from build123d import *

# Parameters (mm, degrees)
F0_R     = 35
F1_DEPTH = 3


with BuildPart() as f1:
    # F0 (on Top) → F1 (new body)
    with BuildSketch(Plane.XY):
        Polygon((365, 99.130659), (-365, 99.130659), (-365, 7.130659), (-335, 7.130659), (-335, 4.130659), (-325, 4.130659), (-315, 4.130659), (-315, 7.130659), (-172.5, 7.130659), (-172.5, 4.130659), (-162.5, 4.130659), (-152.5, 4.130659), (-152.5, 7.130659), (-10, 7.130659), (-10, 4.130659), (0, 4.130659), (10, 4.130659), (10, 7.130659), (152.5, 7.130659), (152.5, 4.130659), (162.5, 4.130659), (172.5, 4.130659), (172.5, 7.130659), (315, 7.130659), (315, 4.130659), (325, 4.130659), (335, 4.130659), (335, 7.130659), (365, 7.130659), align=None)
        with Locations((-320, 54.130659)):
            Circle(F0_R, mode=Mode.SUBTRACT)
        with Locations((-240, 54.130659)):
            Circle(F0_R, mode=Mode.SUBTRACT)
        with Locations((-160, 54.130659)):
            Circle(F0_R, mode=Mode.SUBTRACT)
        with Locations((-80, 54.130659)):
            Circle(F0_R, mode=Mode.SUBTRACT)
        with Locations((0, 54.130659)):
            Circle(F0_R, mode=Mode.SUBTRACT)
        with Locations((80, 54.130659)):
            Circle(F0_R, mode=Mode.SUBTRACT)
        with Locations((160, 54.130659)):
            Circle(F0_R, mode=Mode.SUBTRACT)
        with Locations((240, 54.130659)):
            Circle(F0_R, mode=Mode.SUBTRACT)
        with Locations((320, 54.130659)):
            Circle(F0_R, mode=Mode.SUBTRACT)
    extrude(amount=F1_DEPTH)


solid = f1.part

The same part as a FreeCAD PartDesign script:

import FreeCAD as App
import Part
import Sketcher

V = App.Vector
Q = App.Units.Quantity


def add_polygon(sketch, points):
    """Adds a closed chain of lines whose ends are joined by coincident constraints."""
    first, n = sketch.GeometryCount, len(points)
    for a, b in zip(points, points[1:] + points[:1]):
        sketch.addGeometry(Part.LineSegment(App.Vector(*a, 0), App.Vector(*b, 0)), False)
    for i in range(n):
        sketch.addConstraint(Sketcher.Constraint("Coincident", first + i, 2, first + (i + 1) % n, 1))

doc = App.newDocument("Part")
params = doc.addObject("Spreadsheet::Sheet", "Params")
for row, (alias, value) in enumerate([
    ("sketch1_diameter", "70 mm"),
    ("sketch1_width", "730 mm"),
    ("sketch1_width2", "30 mm"),
    ("sketch1_width3", "20 mm"),
    ("sketch1_height", "92 mm"),
    ("pad1_length", "3 mm"),
], start=1):
    params.set(f"A{row}", alias)
    params.set(f"B{row}", "=" + value)
    params.setAlias(f"B{row}", alias)

body = doc.addObject("PartDesign::Body", "Body")

# Sketch on XY plane
sketch1 = body.newObject("Sketcher::SketchObject", "Sketch")
sketch1.AttachmentSupport = (doc.getObject("XY_Plane"), [""])
sketch1.MapMode = "FlatFace"
add_polygon(sketch1, [(365, 99.130659), (-365, 99.130659), (-365, 7.130659), (-335, 7.130659), (-335, 4.130659), (-315, 4.130659), (-315, 7.130659), (-172.5, 7.130659), (-172.5, 4.130659), (-152.5, 4.130659), (-152.5, 7.130659), (-10, 7.130659), (-10, 4.130659), (10, 4.130659), (10, 7.130659), (152.5, 7.130659), (152.5, 4.130659), (172.5, 4.130659), (172.5, 7.130659), (315, 7.130659), (315, 4.130659), (335, 4.130659), (335, 7.130659), (365, 7.130659)])  # lines 0-23
sketch1.addGeometry(Part.Circle(V(-320, 54.130659, 0), V(0, 0, 1), 35), False)  # 24
sketch1.addGeometry(Part.Circle(V(-240, 54.130659, 0), V(0, 0, 1), 35), False)  # 25
sketch1.addGeometry(Part.Circle(V(-160, 54.130659, 0), V(0, 0, 1), 35), False)  # 26
sketch1.addGeometry(Part.Circle(V(-80, 54.130659, 0), V(0, 0, 1), 35), False)  # 27
sketch1.addGeometry(Part.Circle(V(0, 54.130659, 0), V(0, 0, 1), 35), False)  # 28
sketch1.addGeometry(Part.Circle(V(80, 54.130659, 0), V(0, 0, 1), 35), False)  # 29
sketch1.addGeometry(Part.Circle(V(160, 54.130659, 0), V(0, 0, 1), 35), False)  # 30
sketch1.addGeometry(Part.Circle(V(240, 54.130659, 0), V(0, 0, 1), 35), False)  # 31
sketch1.addGeometry(Part.Circle(V(320, 54.130659, 0), V(0, 0, 1), 35), False)  # 32
sketch1.addConstraint(Sketcher.Constraint("Horizontal", 0))
sketch1.addConstraint(Sketcher.Constraint("Vertical", 1))
sketch1.addConstraint(Sketcher.Constraint("Horizontal", 2))
sketch1.addConstraint(Sketcher.Constraint("Vertical", 3))
sketch1.addConstraint(Sketcher.Constraint("Horizontal", 4))
sketch1.addConstraint(Sketcher.Constraint("Vertical", 5))
sketch1.addConstraint(Sketcher.Constraint("Horizontal", 6))
sketch1.addConstraint(Sketcher.Constraint("Vertical", 7))
sketch1.addConstraint(Sketcher.Constraint("Horizontal", 8))
sketch1.addConstraint(Sketcher.Constraint("Vertical", 9))
sketch1.addConstraint(Sketcher.Constraint("Horizontal", 10))
sketch1.addConstraint(Sketcher.Constraint("Vertical", 11))
sketch1.addConstraint(Sketcher.Constraint("Horizontal", 12))
sketch1.addConstraint(Sketcher.Constraint("Vertical", 13))
sketch1.addConstraint(Sketcher.Constraint("Horizontal", 14))
sketch1.addConstraint(Sketcher.Constraint("Vertical", 15))
sketch1.addConstraint(Sketcher.Constraint("Horizontal", 16))
sketch1.addConstraint(Sketcher.Constraint("Vertical", 17))
sketch1.addConstraint(Sketcher.Constraint("Horizontal", 18))
sketch1.addConstraint(Sketcher.Constraint("Vertical", 19))
sketch1.addConstraint(Sketcher.Constraint("Horizontal", 20))
sketch1.addConstraint(Sketcher.Constraint("Vertical", 21))
sketch1.addConstraint(Sketcher.Constraint("Horizontal", 22))
sketch1.addConstraint(Sketcher.Constraint("Vertical", 23))
sketch1.addConstraint(Sketcher.Constraint("Equal", 24, 25))
sketch1.addConstraint(Sketcher.Constraint("Equal", 25, 26))
sketch1.addConstraint(Sketcher.Constraint("Equal", 26, 27))
sketch1.addConstraint(Sketcher.Constraint("Equal", 27, 28))
sketch1.addConstraint(Sketcher.Constraint("Equal", 28, 29))
sketch1.addConstraint(Sketcher.Constraint("Equal", 29, 30))
sketch1.addConstraint(Sketcher.Constraint("Equal", 30, 31))
sketch1.addConstraint(Sketcher.Constraint("Equal", 31, 32))
sketch1.addConstraint(Sketcher.Constraint("Symmetric", 27, 3, 29, 3, -2))
sketch1.addConstraint(Sketcher.Constraint("Symmetric", 26, 3, 30, 3, -2))
sketch1.addConstraint(Sketcher.Constraint("Symmetric", 25, 3, 31, 3, -2))
sketch1.addConstraint(Sketcher.Constraint("Symmetric", 24, 3, 32, 3, -2))
sketch1.addConstraint(Sketcher.Constraint("Symmetric", 10, 2, 13, 2, -2))
sketch1.addConstraint(Sketcher.Constraint("Symmetric", 8, 2, 15, 2, -2))
sketch1.addConstraint(Sketcher.Constraint("Symmetric", 6, 2, 17, 2, -2))
sketch1.addConstraint(Sketcher.Constraint("Symmetric", 4, 2, 19, 2, -2))
sketch1.addConstraint(Sketcher.Constraint("Symmetric", 2, 2, 21, 2, -2))
sketch1.addConstraint(Sketcher.Constraint("PointOnObject", 28, 3, -2))
sketch1.addConstraint(Sketcher.Constraint("Horizontal", 24, 3, 25, 3))
sketch1.addConstraint(Sketcher.Constraint("Horizontal", 25, 3, 26, 3))
sketch1.addConstraint(Sketcher.Constraint("Horizontal", 26, 3, 27, 3))
sketch1.addConstraint(Sketcher.Constraint("Horizontal", 27, 3, 28, 3))
sketch1.addConstraint(Sketcher.Constraint("Horizontal", 2, 2, 5, 2))
sketch1.addConstraint(Sketcher.Constraint("Horizontal", 4, 2, 7, 2))
sketch1.addConstraint(Sketcher.Constraint("Horizontal", 6, 2, 9, 2))
sketch1.addConstraint(Sketcher.Constraint("Horizontal", 8, 2, 11, 2))
sketch1.addConstraint(Sketcher.Constraint("Equal", 4, 8))
sketch1.addConstraint(Sketcher.Constraint("Equal", 6, 10))
sketch1.addConstraint(Sketcher.Constraint("Equal", 8, 12))
sketch1.addConstraint(Sketcher.Constraint("Equal", 2, 22))
sketch1.addConstraint(Sketcher.Constraint("Diameter", 24, Q("70 mm")))
sketch1.addConstraint(Sketcher.Constraint("DistanceX", 0, 2, 0, 1, Q("730 mm")))
sketch1.addConstraint(Sketcher.Constraint("DistanceX", 2, 1, 2, 2, Q("30 mm")))
sketch1.addConstraint(Sketcher.Constraint("DistanceX", 4, 1, 4, 2, Q("20 mm")))
sketch1.addConstraint(Sketcher.Constraint("DistanceY", 1, 2, 1, 1, Q("92 mm")))
sketch1.addConstraint(Sketcher.Constraint("DistanceY", 3, 2, 3, 1, Q("3 mm")))
sketch1.addConstraint(Sketcher.Constraint("DistanceX", 24, 3, -1, 1, Q("320 mm")))
sketch1.addConstraint(Sketcher.Constraint("DistanceX", 25, 3, -1, 1, Q("240 mm")))
sketch1.addConstraint(Sketcher.Constraint("DistanceX", 26, 3, -1, 1, Q("160 mm")))
sketch1.addConstraint(Sketcher.Constraint("DistanceX", 27, 3, -1, 1, Q("80 mm")))
sketch1.addConstraint(Sketcher.Constraint("DistanceY", 24, 3, 0, 2, Q("45 mm")))
sketch1.addConstraint(Sketcher.Constraint("DistanceY", -1, 1, 24, 3, Q("54.130659 mm")))
sketch1.setExpression("Constraints[78]", "Params.sketch1_diameter")
sketch1.setExpression("Constraints[79]", "Params.sketch1_width")
sketch1.setExpression("Constraints[80]", "Params.sketch1_width2")
sketch1.setExpression("Constraints[81]", "Params.sketch1_width3")
sketch1.setExpression("Constraints[82]", "Params.sketch1_height")
pad1 = body.newObject("PartDesign::Pad", "Pad")
pad1.Profile = sketch1
pad1.setExpression("Length", "Params.pad1_length")

doc.recompute()
